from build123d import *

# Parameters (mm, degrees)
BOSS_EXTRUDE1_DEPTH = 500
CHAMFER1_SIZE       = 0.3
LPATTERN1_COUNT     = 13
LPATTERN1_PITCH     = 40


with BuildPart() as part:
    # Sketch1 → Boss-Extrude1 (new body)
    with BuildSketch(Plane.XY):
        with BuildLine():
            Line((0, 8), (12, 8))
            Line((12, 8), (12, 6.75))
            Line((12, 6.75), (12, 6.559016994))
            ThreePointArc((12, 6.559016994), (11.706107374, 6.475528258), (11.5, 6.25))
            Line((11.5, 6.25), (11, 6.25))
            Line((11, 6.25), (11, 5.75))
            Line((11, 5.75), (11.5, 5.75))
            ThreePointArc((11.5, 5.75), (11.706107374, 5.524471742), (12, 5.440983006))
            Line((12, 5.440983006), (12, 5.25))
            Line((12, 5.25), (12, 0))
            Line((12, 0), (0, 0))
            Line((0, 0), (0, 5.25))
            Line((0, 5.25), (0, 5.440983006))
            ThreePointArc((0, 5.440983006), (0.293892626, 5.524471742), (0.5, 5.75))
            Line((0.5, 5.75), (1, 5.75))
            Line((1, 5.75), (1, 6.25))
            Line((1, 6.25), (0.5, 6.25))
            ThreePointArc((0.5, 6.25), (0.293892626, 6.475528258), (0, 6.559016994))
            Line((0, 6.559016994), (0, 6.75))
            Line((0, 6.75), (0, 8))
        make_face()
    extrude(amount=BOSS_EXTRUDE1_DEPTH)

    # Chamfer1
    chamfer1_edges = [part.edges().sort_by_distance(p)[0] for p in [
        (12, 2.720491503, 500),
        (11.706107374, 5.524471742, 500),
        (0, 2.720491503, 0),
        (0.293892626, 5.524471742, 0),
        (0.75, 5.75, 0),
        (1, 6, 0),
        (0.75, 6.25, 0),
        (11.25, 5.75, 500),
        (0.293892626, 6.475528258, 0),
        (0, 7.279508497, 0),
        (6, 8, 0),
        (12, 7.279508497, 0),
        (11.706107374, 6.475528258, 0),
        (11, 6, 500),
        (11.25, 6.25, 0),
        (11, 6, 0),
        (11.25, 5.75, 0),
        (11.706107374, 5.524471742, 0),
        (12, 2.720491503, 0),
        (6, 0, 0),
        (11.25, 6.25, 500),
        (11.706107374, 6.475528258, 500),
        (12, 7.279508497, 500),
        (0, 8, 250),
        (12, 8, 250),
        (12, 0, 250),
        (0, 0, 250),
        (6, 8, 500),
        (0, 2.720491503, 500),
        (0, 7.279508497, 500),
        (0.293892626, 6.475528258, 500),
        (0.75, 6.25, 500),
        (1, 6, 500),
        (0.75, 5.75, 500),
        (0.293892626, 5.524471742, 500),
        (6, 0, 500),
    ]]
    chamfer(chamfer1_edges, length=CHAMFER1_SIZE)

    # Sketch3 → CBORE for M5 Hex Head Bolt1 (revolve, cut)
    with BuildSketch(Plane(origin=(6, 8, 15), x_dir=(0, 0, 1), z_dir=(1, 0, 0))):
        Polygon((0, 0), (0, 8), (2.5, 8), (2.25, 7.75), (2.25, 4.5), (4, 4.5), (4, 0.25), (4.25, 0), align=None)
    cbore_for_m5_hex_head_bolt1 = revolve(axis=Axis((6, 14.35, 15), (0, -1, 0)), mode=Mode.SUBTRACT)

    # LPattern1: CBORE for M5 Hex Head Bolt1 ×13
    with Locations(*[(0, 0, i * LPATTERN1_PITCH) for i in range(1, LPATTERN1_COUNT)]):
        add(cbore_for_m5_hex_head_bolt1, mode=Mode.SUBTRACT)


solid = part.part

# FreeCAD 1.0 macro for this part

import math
import FreeCAD as App
import Part
import Sketcher
from FreeCAD import Vector
Q = App.Units.Quantity


def edges_at(feature, points):
    """Names of the edges that pass closest to the given points."""
    edges = feature.Shape.Edges
    near = lambda p: min(range(len(edges)), key=lambda i: edges[i].distToShape(Part.Vertex(*p))[0])
    return sorted({f"Edge{near(p) + 1}" for p in points})


def add_polygon(sketch, points):
    """Adds a closed chain of lines whose ends are joined by coincident constraints."""
    first, n = sketch.GeometryCount, len(points)
    for a, b in zip(points, points[1:] + points[:1]):
        sketch.addGeometry(Part.LineSegment(App.Vector(*a, 0), App.Vector(*b, 0)), False)
    for i in range(n):
        sketch.addConstraint(Sketcher.Constraint("Coincident", first + i, 2, first + (i + 1) % n, 1))

doc = App.newDocument("Part")
params = doc.addObject("Spreadsheet::Sheet", "Params")
for row, (alias, value) in enumerate([
    ("sketch1_width", "12 mm"),
    ("sketch1_width2", "0.5 mm"),
    ("pad1_length", "500 mm"),
    ("chamfer_size", "0.3 mm"),
    ("sketch2_width", "8 mm"),
    ("sketch2_height", "2.5 mm"),
    ("groove_angle", "360 deg"),
    ("linearpattern_pitch", "40 mm"),
], start=1):
    params.set(f"A{row}", alias)
    params.set(f"B{row}", "=" + value)
    params.setAlias(f"B{row}", alias)

body = doc.addObject("PartDesign::Body", "Body")

# Sketch on XY plane
sketch1 = body.newObject("Sketcher::SketchObject", "Sketch")
sketch1.AttachmentSupport = (doc.getObject("XY_Plane"), [""])
sketch1.MapMode = "FlatFace"
sketch1.addGeometry([
    Part.LineSegment(Vector(12, 8, 0), Vector(0, 8, 0)),  # 0
    Part.LineSegment(Vector(0, 8, 0), Vector(0, 6.559017, 0)),  # 1
    Part.ArcOfCircle(Part.Circle(Vector(0, 6, 0), Vector(0, 0, 1), 0.559017), math.radians(26.565051), math.radians(90)),  # 2
    Part.LineSegment(Vector(0.5, 6.25, 0), Vector(1, 6.25, 0)),  # 3
    Part.LineSegment(Vector(1, 6.25, 0), Vector(1, 5.75, 0)),  # 4
    Part.LineSegment(Vector(1, 5.75, 0), Vector(0.5, 5.75, 0)),  # 5
    Part.ArcOfCircle(Part.Circle(Vector(0, 6, 0), Vector(0, 0, 1), 0.559017), math.radians(-90), math.radians(-26.565051)),  # 6
    Part.LineSegment(Vector(0, 5.440983, 0), Vector(0, 0, 0)),  # 7
    Part.LineSegment(Vector(0, 0, 0), Vector(12, 0, 0)),  # 8
    Part.LineSegment(Vector(12, 0, 0), Vector(12, 5.440983, 0)),  # 9
    Part.ArcOfCircle(Part.Circle(Vector(12, 6, 0), Vector(0, 0, 1), 0.559017), math.radians(-153.434949), math.radians(-90)),  # 10
    Part.LineSegment(Vector(11.5, 5.75, 0), Vector(11, 5.75, 0)),  # 11
    Part.LineSegment(Vector(11, 5.75, 0), Vector(11, 6.25, 0)),  # 12
    Part.LineSegment(Vector(11, 6.25, 0), Vector(11.5, 6.25, 0)),  # 13
    Part.ArcOfCircle(Part.Circle(Vector(12, 6, 0), Vector(0, 0, 1), 0.559017), math.radians(90), math.radians(153.434949)),  # 14
    Part.LineSegment(Vector(12, 6.559017, 0), Vector(12, 8, 0)),  # 15
], False)
sketch1.addConstraint([
    Sketcher.Constraint("Coincident", 0, 2, 1, 1),
    Sketcher.Constraint("Coincident", 1, 2, 2, 2),
    Sketcher.Constraint("Coincident", 2, 1, 3, 1),
    Sketcher.Constraint("Coincident", 3, 2, 4, 1),
    Sketcher.Constraint("Coincident", 4, 2, 5, 1),
    Sketcher.Constraint("Coincident", 5, 2, 6, 2),
    Sketcher.Constraint("Coincident", 6, 1, 7, 1),
    Sketcher.Constraint("Coincident", 7, 2, 8, 1),
    Sketcher.Constraint("Coincident", 8, 2, 9, 1),
    Sketcher.Constraint("Coincident", 9, 2, 10, 2),
    Sketcher.Constraint("Coincident", 10, 1, 11, 1),
    Sketcher.Constraint("Coincident", 11, 2, 12, 1),
    Sketcher.Constraint("Coincident", 12, 2, 13, 1),
    Sketcher.Constraint("Coincident", 13, 2, 14, 2),
    Sketcher.Constraint("Coincident", 14, 1, 15, 1),
    Sketcher.Constraint("Coincident", 15, 2, 0, 1),
    Sketcher.Constraint("Horizontal", 0),
    Sketcher.Constraint("Vertical", 1),
    Sketcher.Constraint("Horizontal", 3),
    Sketcher.Constraint("Vertical", 4),
    Sketcher.Constraint("Horizontal", 5),
    Sketcher.Constraint("Vertical", 7),
    Sketcher.Constraint("Horizontal", 8),
    Sketcher.Constraint("Vertical", 9),
    Sketcher.Constraint("Horizontal", 11),
    Sketcher.Constraint("Vertical", 12),
    Sketcher.Constraint("Horizontal", 13),
    Sketcher.Constraint("Vertical", 15),
    Sketcher.Constraint("Coincident", 7, 2, -1, 1),
    Sketcher.Constraint("Coincident", 6, 3, 2, 3),
    Sketcher.Constraint("Coincident", 14, 3, 10, 3),
    Sketcher.Constraint("Equal", 2, 6),
    Sketcher.Constraint("Equal", 6, 10),
    Sketcher.Constraint("Equal", 10, 14),
    Sketcher.Constraint("PointOnObject", 2, 3, -2),
    Sketcher.Constraint("PointOnObject", 0, 2, -2),
    Sketcher.Constraint("Horizontal", 6, 3, 10, 3),
    Sketcher.Constraint("Horizontal", 5, 2, 10, 1),
    Sketcher.Constraint("Horizontal", 3, 2, 12, 2),
    Sketcher.Constraint("Vertical", 2, 1, 5, 2),
    Sketcher.Constraint("Vertical", 14, 3, 8, 2),
    Sketcher.Constraint("Vertical", 9, 2, 14, 1),
    Sketcher.Constraint("Equal", 5, 11),
    Sketcher.Constraint("Equal", 13, 4),
    Sketcher.Constraint("DistanceX", 0, 2, 0, 1, Q("12 mm")),
    Sketcher.Constraint("DistanceX", 3, 1, 3, 2, Q("0.5 mm")),
    Sketcher.Constraint("DistanceY", -1, 1, 2, 3, Q("6 mm")),
    Sketcher.Constraint("DistanceY", -1, 1, 0, 2, Q("8 mm")),
    Sketcher.Constraint("DistanceX", -1, 1, 3, 2, Q("1 mm")),
])
sketch1.setExpression("Constraints[44]", "Params.sketch1_width")
sketch1.setExpression("Constraints[45]", "Params.sketch1_width2")
pad1 = body.newObject("PartDesign::Pad", "Pad")
pad1.Profile = sketch1
pad1.setExpression("Length", "Params.pad1_length")
doc.recompute()

chamfer = body.newObject("PartDesign::Chamfer", "Chamfer")
chamfer.Base = (pad1, edges_at(pad1, [
    (12, 2.72, 500),
    (11.706, 5.524, 500),
    (0, 2.72, 0),
    (0.294, 5.524, 0),
    (0.75, 5.75, 0),
    (1, 6, 0),
    (0.75, 6.25, 0),
    (11.25, 5.75, 500),
    (0.294, 6.476, 0),
    (0, 7.28, 0),
    (6, 8, 0),
    (12, 7.28, 0),
    (11.706, 6.476, 0),
    (11, 6, 500),
    (11.25, 6.25, 0),
    (11, 6, 0),
    (11.25, 5.75, 0),
    (11.706, 5.524, 0),
    (12, 2.72, 0),
    (6, 0, 0),
    (11.25, 6.25, 500),
    (11.706, 6.476, 500),
    (12, 7.28, 500),
    (0, 8, 250),
    (12, 8, 250),
    (12, 0, 250),
    (0, 0, 250),
    (6, 8, 500),
    (0, 2.72, 500),
    (0, 7.28, 500),
    (0.294, 6.476, 500),
    (0.75, 6.25, 500),
    (1, 6, 500),
    (0.75, 5.75, 500),
    (0.294, 5.524, 500),
    (6, 0, 500),
]))
chamfer.setExpression("Size", "Params.chamfer_size")

# Sketch on YZ plane
sketch2 = body.newObject("Sketcher::SketchObject", "Sketch001")
sketch2.AttachmentSupport = (doc.getObject("YZ_Plane"), [""])
sketch2.MapMode = "FlatFace"
sketch2.AttachmentOffset = App.Placement(Vector(0, 0, 6), App.Rotation())
add_polygon(sketch2, [(0, 15), (8, 15), (8, 19.25), (7.75, 19), (3.5, 19), (3.5, 17.25), (0.25, 17.25), (0, 17.5)])  # lines 0-7
sketch2.addGeometry(Part.LineSegment(Vector(8, 15, 0), Vector(0, 15, 0)), True)  # axis
sketch2.addConstraint([
    Sketcher.Constraint("Horizontal", 0),
    Sketcher.Constraint("Vertical", 1),
    Sketcher.Constraint("Horizontal", 3),
    Sketcher.Constraint("Vertical", 4),
    Sketcher.Constraint("Horizontal", 5),
    Sketcher.Constraint("Vertical", 7),
    Sketcher.Constraint("Horizontal", 8),
    Sketcher.Constraint("Coincident", 8, 1, 0, 2),
    Sketcher.Constraint("PointOnObject", 6, 2, -2),
    Sketcher.Constraint("PointOnObject", 8, 2, -2),
    Sketcher.Constraint("Perpendicular", 2, 6),
    Sketcher.Constraint("Equal", 3, 1),
    Sketcher.Constraint("Equal", 2, 6),
    Sketcher.Constraint("DistanceX", 0, 1, 0, 2, Q("8 mm")),
    Sketcher.Constraint("Angle", 2, Q("-135 deg")),
    Sketcher.Constraint("DistanceY", 7, 2, 7, 1, Q("2.5 mm")),
    Sketcher.Constraint("DistanceY", -1, 1, 0, 2, Q("15 mm")),
    Sketcher.Constraint("DistanceY", -1, 1, 2, 2, Q("19 mm")),
    Sketcher.Constraint("DistanceY", 4, 2, 1, 2, Q("2 mm")),
])
sketch2.setExpression("Constraints[21]", "Params.sketch2_width")
sketch2.setExpression("Constraints[23]", "Params.sketch2_height")
groove = body.newObject("PartDesign::Groove", "Groove")
groove.Profile = sketch2
groove.ReferenceAxis = (sketch2, ["Axis0"])
groove.setExpression("Angle", "Params.groove_angle")
doc.recompute()

linearpattern = body.newObject("PartDesign::LinearPattern", "LinearPattern")
linearpattern.Originals = [groove]
linearpattern.Direction = (doc.getObject("Z_Axis"), [""])
linearpattern.Mode = "offset"
linearpattern.setExpression("Offset", "Params.linearpattern_pitch")
linearpattern.Occurrences = 13
body.Tip = linearpattern

doc.recompute()
